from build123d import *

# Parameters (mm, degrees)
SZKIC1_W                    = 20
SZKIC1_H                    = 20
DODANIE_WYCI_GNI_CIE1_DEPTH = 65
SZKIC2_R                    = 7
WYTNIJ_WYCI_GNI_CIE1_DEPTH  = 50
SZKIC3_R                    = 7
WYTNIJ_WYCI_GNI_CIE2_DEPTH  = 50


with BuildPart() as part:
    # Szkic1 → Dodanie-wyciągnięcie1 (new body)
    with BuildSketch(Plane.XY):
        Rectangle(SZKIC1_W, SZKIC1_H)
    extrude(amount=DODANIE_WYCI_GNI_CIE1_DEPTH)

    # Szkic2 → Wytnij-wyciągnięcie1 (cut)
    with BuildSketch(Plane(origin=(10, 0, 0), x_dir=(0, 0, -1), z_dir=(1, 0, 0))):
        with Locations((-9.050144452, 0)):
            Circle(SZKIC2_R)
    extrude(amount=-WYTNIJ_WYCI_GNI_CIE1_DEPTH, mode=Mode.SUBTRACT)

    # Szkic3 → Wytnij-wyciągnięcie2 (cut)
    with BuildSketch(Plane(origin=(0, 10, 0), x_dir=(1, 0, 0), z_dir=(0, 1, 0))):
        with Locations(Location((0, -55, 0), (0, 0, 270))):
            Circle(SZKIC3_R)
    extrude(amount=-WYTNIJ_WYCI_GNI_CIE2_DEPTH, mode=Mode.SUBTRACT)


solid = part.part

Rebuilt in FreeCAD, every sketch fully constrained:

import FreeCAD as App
import Part
import Sketcher
from FreeCAD import Vector

doc = App.newDocument("Part")
body = doc.addObject("PartDesign::Body", "Body")

# Sketch on XY plane
sketch1 = body.newObject("Sketcher::SketchObject", "Sketch")
sketch1.AttachmentSupport = (doc.getObject("XY_Plane"), [""])
sketch1.MapMode = "FlatFace"
sketch1.addGeometry(Part.LineSegment(Vector(-10, 10, 0), Vector(-10, -10, 0)), False)
sketch1.addGeometry(Part.LineSegment(Vector(-10, -10, 0), Vector(10, -10, 0)), False)
sketch1.addGeometry(Part.LineSegment(Vector(10, -10, 0), Vector(10, 10, 0)), False)
sketch1.addGeometry(Part.LineSegment(Vector(10, 10, 0), Vector(-10, 10, 0)), False)
sketch1.addConstraint(Sketcher.Constraint("Coincident", 0, 2, 1, 1))
sketch1.addConstraint(Sketcher.Constraint("Coincident", 1, 2, 2, 1))
sketch1.addConstraint(Sketcher.Constraint("Coincident", 2, 2, 3, 1))
sketch1.addConstraint(Sketcher.Constraint("Coincident", 3, 2, 0, 1))
sketch1.addConstraint(Sketcher.Constraint("Vertical", 0))
sketch1.addConstraint(Sketcher.Constraint("Horizontal", 1))
sketch1.addConstraint(Sketcher.Constraint("Vertical", 2))
sketch1.addConstraint(Sketcher.Constraint("Horizontal", 3))
sketch1.addConstraint(Sketcher.Constraint("Symmetric", 0, 2, 2, 2, -1, 1))
sketch1.addConstraint(Sketcher.Constraint("Equal", 3, 0))
sketch1.addConstraint(Sketcher.Constraint("DistanceX", 1, 1, 1, 2, 20.0))
pad1 = body.newObject("PartDesign::Pad", "Pad")
pad1.Profile = sketch1
pad1.Length = 65

# Sketch on YZ plane
sketch2 = body.newObject("Sketcher::SketchObject", "Sketch001")
sketch2.AttachmentSupport = (doc.getObject("YZ_Plane"), [""])
sketch2.MapMode = "FlatFace"
sketch2.AttachmentOffset = App.Placement(Vector(0, 0, 10), App.Rotation())
sketch2.addGeometry(Part.Circle(Vector(0, 9.050144, 0), Vector(0, 0, 1), 7), False)
sketch2.addConstraint(Sketcher.Constraint("PointOnObject", 0, 3, -2))
sketch2.addConstraint(Sketcher.Constraint("Diameter", 0, 14.0))
sketch2.addConstraint(Sketcher.Constraint("DistanceY", -1, 1, 0, 3, 9.050144))
pocket1 = body.newObject("PartDesign::Pocket", "Pocket")
pocket1.Profile = sketch2
pocket1.Length = 50

# Sketch on XZ plane
sketch3 = body.newObject("Sketcher::SketchObject", "Sketch002")
sketch3.AttachmentSupport = (doc.getObject("XZ_Plane"), [""])
sketch3.MapMode = "FlatFace"
sketch3.AttachmentOffset = App.Placement(Vector(0, 0, -10), App.Rotation())
sketch3.addGeometry(Part.Circle(Vector(0, 55, 0), Vector(0, 0, 1), 7), False)
sketch3.addConstraint(Sketcher.Constraint("PointOnObject", 0, 3, -2))
sketch3.addConstraint(Sketcher.Constraint("Diameter", 0, 14.0))
sketch3.addConstraint(Sketcher.Constraint("DistanceY", -1, 1, 0, 3, 55.0))
pocket2 = body.newObject("PartDesign::Pocket", "Pocket001")
pocket2.Profile = sketch3
pocket2.Length = 50
pocket2.Reversed = True

doc.recompute()
